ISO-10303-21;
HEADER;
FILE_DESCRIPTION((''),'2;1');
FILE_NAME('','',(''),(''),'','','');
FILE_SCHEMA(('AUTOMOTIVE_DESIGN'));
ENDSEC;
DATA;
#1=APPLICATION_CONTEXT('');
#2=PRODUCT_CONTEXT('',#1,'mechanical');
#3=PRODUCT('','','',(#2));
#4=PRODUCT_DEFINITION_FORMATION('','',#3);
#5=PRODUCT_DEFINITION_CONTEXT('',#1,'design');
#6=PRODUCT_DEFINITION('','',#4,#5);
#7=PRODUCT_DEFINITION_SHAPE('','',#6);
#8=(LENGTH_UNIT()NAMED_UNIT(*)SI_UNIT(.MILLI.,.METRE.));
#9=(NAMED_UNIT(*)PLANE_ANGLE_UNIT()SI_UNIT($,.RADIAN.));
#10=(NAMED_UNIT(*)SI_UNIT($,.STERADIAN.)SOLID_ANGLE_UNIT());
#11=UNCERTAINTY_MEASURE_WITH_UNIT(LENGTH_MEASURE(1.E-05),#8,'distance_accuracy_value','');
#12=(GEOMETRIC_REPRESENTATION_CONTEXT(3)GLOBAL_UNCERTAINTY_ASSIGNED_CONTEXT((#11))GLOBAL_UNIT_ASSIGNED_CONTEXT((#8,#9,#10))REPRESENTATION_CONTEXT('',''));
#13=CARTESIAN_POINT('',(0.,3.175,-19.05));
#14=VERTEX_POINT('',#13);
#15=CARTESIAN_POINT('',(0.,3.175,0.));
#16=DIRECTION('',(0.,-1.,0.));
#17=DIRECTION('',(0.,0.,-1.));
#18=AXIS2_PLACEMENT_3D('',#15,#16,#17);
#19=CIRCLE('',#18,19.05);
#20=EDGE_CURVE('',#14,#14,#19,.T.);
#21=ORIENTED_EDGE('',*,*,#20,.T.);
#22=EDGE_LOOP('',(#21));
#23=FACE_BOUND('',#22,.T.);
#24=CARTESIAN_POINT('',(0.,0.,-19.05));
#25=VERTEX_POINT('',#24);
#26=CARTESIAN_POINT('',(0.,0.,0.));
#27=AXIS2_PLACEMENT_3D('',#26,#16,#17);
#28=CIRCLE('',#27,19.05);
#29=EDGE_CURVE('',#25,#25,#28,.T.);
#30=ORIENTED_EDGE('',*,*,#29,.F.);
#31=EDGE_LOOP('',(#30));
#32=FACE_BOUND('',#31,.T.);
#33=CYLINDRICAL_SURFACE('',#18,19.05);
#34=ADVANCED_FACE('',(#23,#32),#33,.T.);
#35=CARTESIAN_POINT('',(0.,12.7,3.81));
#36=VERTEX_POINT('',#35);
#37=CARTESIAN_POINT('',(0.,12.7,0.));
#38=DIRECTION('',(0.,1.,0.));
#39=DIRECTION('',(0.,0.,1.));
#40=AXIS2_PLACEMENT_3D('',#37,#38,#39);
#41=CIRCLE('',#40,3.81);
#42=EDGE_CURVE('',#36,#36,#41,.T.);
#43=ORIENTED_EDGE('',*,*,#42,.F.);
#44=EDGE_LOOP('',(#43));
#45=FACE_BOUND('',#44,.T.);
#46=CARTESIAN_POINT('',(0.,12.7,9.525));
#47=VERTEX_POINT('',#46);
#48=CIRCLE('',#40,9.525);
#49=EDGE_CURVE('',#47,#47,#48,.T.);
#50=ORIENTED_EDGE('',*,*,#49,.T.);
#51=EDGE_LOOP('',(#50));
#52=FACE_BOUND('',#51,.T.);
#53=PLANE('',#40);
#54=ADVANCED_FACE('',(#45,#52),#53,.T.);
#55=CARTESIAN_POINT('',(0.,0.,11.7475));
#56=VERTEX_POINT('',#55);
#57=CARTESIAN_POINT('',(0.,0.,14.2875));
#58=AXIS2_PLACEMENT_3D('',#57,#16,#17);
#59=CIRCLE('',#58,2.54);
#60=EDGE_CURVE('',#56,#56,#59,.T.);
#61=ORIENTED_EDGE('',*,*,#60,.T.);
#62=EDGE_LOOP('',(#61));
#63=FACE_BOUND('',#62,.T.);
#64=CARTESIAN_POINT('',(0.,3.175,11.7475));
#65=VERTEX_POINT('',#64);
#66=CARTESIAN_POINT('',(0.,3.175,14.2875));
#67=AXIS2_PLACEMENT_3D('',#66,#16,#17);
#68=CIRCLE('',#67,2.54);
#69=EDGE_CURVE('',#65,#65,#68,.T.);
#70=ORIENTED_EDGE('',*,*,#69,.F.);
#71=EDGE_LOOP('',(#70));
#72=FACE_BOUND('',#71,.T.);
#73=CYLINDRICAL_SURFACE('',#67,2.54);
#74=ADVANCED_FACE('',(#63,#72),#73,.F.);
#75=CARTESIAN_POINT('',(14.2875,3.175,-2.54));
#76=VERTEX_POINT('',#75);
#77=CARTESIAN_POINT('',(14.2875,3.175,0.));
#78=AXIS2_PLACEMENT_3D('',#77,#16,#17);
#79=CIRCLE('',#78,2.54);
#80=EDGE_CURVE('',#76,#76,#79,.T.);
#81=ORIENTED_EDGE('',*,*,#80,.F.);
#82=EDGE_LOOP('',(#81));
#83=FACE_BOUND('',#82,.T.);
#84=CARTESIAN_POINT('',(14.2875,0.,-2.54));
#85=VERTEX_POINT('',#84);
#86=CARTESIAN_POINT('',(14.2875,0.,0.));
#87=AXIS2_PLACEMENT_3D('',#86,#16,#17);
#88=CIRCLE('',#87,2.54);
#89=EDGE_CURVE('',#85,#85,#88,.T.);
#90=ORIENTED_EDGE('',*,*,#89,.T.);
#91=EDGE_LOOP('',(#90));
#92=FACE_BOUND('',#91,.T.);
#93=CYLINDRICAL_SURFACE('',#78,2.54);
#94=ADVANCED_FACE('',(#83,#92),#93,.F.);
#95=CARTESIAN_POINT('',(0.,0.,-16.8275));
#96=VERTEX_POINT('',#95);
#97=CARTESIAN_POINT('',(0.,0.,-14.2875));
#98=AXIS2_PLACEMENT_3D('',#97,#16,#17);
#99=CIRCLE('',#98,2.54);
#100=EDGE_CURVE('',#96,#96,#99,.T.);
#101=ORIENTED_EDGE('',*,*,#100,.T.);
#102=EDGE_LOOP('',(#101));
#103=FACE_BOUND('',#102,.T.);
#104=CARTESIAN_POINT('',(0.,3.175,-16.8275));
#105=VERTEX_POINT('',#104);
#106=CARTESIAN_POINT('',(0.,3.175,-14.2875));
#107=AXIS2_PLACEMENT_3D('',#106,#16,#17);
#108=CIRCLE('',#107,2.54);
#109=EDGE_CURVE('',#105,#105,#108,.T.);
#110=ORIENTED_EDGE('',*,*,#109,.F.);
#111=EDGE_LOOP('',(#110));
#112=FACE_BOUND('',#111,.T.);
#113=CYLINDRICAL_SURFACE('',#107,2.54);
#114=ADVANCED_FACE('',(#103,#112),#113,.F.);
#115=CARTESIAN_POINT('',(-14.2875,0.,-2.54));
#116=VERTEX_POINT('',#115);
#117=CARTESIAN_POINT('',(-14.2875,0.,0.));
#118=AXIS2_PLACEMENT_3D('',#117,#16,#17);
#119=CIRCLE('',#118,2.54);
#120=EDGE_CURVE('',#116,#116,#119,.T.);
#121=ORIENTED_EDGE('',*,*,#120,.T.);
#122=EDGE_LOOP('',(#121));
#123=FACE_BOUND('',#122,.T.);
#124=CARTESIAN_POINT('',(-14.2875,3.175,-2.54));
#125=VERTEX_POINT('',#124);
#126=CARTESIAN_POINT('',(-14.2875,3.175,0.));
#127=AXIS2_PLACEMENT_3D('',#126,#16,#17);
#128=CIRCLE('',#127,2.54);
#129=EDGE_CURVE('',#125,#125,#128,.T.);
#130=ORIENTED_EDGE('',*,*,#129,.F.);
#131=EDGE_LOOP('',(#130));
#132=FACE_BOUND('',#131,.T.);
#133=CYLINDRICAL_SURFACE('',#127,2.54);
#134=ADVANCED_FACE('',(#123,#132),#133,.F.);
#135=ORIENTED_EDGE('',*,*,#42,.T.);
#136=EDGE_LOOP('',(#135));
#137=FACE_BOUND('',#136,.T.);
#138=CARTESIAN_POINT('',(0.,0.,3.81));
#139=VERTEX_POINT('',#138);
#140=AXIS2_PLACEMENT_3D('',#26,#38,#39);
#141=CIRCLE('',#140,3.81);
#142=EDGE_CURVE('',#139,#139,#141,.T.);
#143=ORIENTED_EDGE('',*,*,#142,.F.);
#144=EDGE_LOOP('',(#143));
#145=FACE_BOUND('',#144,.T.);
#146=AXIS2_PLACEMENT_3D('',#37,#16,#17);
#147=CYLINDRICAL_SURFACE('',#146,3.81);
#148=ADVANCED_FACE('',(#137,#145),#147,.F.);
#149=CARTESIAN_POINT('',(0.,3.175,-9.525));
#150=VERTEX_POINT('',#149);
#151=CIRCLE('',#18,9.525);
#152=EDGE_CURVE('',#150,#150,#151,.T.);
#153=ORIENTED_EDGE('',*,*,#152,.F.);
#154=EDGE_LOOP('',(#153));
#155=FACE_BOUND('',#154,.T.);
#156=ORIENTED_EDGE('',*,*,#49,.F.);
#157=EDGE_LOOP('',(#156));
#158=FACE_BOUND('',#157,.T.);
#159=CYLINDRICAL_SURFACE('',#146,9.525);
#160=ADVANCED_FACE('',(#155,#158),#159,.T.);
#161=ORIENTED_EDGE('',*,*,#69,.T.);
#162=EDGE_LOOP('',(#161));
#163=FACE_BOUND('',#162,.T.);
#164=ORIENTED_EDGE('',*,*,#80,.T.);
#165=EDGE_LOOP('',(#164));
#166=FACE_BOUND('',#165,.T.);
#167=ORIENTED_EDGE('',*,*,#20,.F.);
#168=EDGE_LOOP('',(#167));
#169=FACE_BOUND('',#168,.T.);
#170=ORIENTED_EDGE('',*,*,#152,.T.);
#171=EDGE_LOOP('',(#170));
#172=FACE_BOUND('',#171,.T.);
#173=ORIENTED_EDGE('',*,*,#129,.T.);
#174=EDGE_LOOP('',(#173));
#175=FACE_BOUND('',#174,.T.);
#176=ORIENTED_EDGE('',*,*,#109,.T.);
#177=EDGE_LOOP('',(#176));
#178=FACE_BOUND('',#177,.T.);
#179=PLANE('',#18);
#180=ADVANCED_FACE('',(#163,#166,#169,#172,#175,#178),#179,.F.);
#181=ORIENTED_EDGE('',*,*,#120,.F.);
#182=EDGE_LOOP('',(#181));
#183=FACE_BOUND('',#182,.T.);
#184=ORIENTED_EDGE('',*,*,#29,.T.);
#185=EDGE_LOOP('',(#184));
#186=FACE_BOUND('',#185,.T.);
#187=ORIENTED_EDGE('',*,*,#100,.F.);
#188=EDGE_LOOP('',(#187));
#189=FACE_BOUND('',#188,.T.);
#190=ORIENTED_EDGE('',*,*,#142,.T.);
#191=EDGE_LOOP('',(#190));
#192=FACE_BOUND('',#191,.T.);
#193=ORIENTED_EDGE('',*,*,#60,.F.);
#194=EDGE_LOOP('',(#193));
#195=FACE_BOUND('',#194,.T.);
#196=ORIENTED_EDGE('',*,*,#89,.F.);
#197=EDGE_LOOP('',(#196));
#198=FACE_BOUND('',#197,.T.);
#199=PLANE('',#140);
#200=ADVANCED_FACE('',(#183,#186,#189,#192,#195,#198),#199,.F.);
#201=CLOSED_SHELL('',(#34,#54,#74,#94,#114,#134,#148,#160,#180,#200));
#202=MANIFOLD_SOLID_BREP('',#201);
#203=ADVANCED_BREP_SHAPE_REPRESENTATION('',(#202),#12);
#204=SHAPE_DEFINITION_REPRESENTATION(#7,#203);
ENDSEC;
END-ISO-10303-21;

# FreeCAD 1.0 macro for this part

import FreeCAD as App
import Part
import Sketcher

V = App.Vector
Q = App.Units.Quantity

doc = App.newDocument("Part")
body = doc.addObject("PartDesign::Body", "Body")

sketch1 = body.newObject("Sketcher::SketchObject", "Sketch")
sketch1.AttachmentSupport = (doc.getObject("XZ_Plane"), [""])
sketch1.MapMode = "FlatFace"
sketch1.addGeometry([
    Part.Circle(V(0, 0, 0), V(0, 0, 1), 9.525),
    Part.Circle(V(0, 0, 0), V(0, 0, 1), 3.81),
], False)
sketch1.addConstraint([
    Sketcher.Constraint("Coincident", 0, 3, -1, 1),
    Sketcher.Constraint("Coincident", 1, 3, -1, 1),
    Sketcher.Constraint("Diameter", 1, Q("0.3 in")),
    Sketcher.Constraint("Diameter", 0, Q("0.75 in")),
])
pad1 = body.newObject("PartDesign::Pad", "Pad")
pad1.Profile = sketch1
pad1.Length = Q("0.5 in")
pad1.Reversed = True

sketch2 = body.newObject("Sketcher::SketchObject", "Sketch001")
sketch2.AttachmentSupport = (doc.getObject("XZ_Plane"), [""])
sketch2.MapMode = "FlatFace"
sketch2.addGeometry([
    Part.Circle(V(0, 0, 0), V(0, 0, 1), 19.05),
    Part.Circle(V(0, 14.2875, 0), V(0, 0, 1), 2.54),
    Part.Circle(V(-14.2875, 0, 0), V(0, 0, 1), 2.54),
    Part.Circle(V(14.2875, 0, 0), V(0, 0, 1), 2.54),
    Part.Circle(V(0, 0, 0), V(0, 0, 1), 9.525),
    Part.Circle(V(0, -14.2875, 0), V(0, 0, 1), 2.54),
], False)
sketch2.addConstraint([
    Sketcher.Constraint("Coincident", 0, 3, -1, 1),
    Sketcher.Constraint("Coincident", 4, 3, -1, 1),
    Sketcher.Constraint("Equal", 1, 2),
    Sketcher.Constraint("Equal", 2, 3),
    Sketcher.Constraint("Equal", 3, 5),
    Sketcher.Constraint("Symmetric", 2, 3, 3, 3, -1, 1),
    Sketcher.Constraint("Symmetric", 1, 3, 5, 3, -1, 1),
    Sketcher.Constraint("PointOnObject", 1, 3, -2),
    Sketcher.Constraint("PointOnObject", 2, 3, -1),
    Sketcher.Constraint("Diameter", 0, Q("1.5 in")),
    Sketcher.Constraint("Diameter", 1, Q("0.2 in")),
    Sketcher.Constraint("Diameter", 4, Q("0.75 in")),
    Sketcher.Constraint("DistanceY", -1, 1, 1, 3, Q("0.5625 in")),
    Sketcher.Constraint("DistanceX", 2, 3, -1, 1, Q("0.5625 in")),
])
pad2 = body.newObject("PartDesign::Pad", "Pad001")
pad2.Profile = sketch2
pad2.Length = Q("0.125 in")
pad2.Reversed = True

doc.recompute()
